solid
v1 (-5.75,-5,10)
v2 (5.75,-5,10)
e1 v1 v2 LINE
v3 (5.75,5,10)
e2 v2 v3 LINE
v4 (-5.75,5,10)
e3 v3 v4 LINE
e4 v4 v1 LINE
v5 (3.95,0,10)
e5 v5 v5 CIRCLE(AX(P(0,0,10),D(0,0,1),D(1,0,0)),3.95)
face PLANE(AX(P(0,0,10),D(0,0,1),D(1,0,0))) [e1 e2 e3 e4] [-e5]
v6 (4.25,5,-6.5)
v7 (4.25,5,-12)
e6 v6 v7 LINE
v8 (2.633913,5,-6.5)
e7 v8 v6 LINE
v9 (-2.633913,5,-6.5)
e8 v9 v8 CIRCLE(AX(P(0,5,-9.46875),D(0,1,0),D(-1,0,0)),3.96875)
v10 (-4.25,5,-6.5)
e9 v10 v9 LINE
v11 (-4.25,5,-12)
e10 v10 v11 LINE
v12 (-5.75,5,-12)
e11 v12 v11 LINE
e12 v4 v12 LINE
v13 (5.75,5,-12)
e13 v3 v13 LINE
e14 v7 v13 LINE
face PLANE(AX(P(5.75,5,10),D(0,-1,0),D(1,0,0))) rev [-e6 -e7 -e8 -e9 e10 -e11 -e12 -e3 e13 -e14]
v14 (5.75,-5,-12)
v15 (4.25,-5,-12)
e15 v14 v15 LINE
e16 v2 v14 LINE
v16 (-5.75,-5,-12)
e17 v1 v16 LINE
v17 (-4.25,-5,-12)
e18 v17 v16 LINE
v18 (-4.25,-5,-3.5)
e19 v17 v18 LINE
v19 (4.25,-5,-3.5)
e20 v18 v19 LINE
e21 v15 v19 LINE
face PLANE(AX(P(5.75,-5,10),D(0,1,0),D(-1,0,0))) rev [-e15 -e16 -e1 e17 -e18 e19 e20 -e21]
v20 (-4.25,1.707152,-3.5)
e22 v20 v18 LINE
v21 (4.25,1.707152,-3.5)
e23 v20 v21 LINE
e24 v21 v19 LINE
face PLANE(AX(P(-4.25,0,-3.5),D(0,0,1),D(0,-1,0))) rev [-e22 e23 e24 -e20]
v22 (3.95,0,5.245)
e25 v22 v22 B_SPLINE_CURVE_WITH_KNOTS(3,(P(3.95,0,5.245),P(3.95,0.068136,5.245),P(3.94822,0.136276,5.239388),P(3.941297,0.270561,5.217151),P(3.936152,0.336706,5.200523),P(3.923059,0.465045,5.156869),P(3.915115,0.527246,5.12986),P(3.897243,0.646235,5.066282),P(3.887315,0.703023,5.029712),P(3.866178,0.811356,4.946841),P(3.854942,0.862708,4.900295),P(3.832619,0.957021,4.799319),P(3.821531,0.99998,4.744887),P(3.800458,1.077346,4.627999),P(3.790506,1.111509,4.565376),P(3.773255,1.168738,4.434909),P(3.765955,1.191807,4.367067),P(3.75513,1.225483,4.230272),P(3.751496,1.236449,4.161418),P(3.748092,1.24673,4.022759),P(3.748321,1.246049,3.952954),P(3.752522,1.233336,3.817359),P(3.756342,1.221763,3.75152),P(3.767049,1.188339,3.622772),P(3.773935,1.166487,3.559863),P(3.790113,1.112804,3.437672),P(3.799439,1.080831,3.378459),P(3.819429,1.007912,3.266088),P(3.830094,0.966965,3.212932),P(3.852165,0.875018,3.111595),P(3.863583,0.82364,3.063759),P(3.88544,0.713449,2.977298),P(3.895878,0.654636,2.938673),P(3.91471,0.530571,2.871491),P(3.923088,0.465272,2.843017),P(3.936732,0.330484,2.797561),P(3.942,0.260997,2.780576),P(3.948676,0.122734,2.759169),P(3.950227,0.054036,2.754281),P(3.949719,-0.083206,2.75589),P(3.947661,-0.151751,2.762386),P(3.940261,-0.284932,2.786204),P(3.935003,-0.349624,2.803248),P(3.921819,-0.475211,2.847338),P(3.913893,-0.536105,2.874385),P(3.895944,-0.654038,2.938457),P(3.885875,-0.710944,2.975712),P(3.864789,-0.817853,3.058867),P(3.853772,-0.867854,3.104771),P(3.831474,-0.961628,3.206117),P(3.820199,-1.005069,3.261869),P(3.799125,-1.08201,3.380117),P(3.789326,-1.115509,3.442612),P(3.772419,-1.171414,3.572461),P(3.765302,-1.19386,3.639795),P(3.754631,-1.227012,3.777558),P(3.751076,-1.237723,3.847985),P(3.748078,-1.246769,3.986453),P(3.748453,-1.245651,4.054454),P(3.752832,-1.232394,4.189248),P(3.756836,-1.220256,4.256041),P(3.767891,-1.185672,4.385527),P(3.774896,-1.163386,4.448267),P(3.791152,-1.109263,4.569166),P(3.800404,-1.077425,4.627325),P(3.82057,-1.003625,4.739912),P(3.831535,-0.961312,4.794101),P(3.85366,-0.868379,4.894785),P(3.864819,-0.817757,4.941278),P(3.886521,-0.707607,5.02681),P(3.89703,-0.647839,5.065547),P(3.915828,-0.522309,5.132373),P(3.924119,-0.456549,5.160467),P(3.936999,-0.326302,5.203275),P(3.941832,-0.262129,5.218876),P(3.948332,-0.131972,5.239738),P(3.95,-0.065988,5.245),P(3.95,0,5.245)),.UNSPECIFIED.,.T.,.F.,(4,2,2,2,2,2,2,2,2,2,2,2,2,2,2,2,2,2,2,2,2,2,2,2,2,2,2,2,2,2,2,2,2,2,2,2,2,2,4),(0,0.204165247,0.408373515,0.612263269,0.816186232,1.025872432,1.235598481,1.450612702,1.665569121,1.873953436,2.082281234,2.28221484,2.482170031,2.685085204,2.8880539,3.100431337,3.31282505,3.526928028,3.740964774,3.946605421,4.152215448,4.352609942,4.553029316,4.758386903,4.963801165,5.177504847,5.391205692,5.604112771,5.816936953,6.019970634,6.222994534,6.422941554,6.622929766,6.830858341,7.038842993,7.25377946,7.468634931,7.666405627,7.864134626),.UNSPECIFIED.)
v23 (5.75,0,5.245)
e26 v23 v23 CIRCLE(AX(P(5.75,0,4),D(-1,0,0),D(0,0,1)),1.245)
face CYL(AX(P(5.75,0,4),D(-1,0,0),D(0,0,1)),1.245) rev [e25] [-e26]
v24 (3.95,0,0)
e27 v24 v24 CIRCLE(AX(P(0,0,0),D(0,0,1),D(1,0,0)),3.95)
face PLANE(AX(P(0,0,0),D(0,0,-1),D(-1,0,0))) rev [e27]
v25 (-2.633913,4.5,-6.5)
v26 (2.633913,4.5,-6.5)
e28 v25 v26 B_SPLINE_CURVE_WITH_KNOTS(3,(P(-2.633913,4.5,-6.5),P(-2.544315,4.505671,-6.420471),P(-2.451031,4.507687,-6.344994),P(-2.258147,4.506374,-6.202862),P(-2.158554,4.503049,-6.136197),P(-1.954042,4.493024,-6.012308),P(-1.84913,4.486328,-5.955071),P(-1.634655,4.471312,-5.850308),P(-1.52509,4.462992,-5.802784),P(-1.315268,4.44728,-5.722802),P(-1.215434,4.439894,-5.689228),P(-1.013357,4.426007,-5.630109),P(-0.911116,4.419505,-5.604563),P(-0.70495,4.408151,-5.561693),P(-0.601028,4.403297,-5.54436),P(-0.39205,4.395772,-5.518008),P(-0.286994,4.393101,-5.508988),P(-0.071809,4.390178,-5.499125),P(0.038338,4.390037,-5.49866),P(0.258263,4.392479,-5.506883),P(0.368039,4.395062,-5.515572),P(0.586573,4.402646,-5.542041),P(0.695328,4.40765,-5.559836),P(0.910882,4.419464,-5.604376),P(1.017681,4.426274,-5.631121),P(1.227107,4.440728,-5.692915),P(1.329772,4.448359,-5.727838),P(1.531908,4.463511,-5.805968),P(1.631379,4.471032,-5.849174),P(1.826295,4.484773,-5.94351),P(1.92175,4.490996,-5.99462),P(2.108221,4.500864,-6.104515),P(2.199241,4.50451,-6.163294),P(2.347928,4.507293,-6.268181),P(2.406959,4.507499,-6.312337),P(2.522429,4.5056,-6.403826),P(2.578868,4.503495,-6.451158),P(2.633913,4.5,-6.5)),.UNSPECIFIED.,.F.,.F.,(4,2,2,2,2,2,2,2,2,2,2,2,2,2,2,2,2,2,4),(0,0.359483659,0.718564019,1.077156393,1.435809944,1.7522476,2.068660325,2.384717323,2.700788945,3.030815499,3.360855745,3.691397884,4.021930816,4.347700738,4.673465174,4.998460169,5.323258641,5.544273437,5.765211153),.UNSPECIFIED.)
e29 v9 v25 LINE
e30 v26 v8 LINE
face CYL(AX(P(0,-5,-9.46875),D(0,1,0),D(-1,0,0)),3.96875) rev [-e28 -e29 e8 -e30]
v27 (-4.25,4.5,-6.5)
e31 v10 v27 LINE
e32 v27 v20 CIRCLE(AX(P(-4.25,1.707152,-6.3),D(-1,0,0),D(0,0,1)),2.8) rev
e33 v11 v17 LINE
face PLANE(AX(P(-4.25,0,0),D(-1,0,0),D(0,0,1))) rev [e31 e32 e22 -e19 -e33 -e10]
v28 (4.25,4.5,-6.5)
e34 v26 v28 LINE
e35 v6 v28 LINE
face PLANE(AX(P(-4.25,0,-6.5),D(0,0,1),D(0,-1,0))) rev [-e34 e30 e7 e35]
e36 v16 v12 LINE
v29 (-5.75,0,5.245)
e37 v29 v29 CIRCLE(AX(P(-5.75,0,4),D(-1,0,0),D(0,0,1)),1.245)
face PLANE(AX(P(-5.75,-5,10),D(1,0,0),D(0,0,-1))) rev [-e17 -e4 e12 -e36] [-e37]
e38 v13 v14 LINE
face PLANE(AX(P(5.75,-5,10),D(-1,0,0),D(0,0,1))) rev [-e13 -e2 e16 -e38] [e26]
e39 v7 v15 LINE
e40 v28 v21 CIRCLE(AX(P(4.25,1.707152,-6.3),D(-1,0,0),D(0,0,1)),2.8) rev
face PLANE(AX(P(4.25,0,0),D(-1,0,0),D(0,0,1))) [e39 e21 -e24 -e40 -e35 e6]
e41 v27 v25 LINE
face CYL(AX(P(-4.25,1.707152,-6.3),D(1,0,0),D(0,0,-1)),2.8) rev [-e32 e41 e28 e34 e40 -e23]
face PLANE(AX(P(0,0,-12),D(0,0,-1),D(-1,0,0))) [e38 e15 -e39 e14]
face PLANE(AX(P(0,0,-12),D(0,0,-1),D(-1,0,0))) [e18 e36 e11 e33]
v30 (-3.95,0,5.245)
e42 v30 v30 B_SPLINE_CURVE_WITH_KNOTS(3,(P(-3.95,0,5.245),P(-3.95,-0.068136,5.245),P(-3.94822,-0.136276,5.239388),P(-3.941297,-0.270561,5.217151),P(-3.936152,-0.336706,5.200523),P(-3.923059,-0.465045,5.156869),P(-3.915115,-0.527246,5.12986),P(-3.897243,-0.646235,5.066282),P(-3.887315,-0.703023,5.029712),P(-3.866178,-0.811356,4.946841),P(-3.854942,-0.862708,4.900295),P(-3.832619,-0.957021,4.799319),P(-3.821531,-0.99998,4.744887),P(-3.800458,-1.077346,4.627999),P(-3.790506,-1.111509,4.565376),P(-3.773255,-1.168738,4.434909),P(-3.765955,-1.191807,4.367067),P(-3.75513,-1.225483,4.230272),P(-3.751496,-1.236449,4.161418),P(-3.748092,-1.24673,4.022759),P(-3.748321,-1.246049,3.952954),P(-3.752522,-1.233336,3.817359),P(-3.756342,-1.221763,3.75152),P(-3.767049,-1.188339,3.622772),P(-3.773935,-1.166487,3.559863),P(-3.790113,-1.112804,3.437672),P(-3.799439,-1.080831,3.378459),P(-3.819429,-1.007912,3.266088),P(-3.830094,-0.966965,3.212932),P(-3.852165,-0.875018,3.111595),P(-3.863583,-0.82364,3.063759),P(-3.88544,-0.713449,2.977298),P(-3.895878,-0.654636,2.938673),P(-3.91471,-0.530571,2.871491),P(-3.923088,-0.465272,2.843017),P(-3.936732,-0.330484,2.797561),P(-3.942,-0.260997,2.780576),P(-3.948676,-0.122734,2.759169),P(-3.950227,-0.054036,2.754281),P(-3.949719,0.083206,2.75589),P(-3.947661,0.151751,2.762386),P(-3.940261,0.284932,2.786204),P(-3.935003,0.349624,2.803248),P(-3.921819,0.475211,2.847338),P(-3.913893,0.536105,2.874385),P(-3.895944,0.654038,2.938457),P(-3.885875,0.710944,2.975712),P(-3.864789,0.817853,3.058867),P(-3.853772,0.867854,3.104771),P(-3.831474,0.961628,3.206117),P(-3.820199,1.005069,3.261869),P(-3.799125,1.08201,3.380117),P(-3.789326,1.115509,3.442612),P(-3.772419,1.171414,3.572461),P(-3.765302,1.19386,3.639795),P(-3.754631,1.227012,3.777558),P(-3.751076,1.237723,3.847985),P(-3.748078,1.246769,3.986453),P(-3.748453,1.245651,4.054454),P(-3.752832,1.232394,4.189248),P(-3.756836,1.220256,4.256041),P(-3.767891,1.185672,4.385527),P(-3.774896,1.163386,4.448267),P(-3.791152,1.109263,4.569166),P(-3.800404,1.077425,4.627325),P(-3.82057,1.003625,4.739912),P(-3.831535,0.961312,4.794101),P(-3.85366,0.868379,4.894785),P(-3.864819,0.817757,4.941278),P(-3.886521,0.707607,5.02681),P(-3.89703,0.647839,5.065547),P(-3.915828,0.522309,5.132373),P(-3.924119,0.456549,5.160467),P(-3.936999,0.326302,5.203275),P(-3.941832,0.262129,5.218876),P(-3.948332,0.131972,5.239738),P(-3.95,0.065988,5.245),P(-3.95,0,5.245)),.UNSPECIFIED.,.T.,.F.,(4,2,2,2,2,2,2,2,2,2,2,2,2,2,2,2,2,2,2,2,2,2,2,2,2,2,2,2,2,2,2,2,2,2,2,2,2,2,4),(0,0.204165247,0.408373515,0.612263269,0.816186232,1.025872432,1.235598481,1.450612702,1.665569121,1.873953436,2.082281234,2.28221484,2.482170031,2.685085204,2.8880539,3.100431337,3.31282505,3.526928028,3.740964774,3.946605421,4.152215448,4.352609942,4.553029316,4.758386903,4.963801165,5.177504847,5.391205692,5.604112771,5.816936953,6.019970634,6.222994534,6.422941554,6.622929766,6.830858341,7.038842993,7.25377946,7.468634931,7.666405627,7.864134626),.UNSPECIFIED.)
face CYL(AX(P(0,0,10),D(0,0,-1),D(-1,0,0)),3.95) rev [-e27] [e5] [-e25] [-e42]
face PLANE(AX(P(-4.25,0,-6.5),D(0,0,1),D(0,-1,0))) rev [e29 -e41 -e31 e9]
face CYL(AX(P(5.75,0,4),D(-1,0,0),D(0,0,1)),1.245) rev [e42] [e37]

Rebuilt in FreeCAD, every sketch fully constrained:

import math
import FreeCAD as App
import Part
import Sketcher

V = App.Vector
Q = App.Units.Quantity

doc = App.newDocument("Part")
params = doc.addObject("Spreadsheet::Sheet", "Params")
for row, (alias, value) in enumerate([
    ("sketch1_diameter", "7.9 mm"),
    ("sketch1_height", "10 mm"),
    ("sketch1_width", "11.5 mm"),
    ("pad1_length", "10 mm"),
    ("sketch2_height", "10 mm"),
    ("sketch2_width", "11.5 mm"),
    ("pad2_length", "12 mm"),
    ("sketch3_radius", "2.8 mm"),
    ("sketch3_width", "10 mm"),
    ("sketch3_width2", "0.5 mm"),
    ("sketch3_height", "8.5 mm"),
    ("sketch3_height2", "5.5 mm"),
    ("pocket1_length", "4.25 mm"),
    ("pocket1_length2", "4.25 mm"),
    ("sketch4_diameter", "2.49 mm"),
], start=1):
    params.set(f"A{row}", alias)
    params.set(f"B{row}", "=" + value)
    params.setAlias(f"B{row}", alias)

body = doc.addObject("PartDesign::Body", "Body")

# Sketch on XY plane
sketch1 = doc.addObject("Sketcher::SketchObject", "Sketch")
body.addObject(sketch1)
sketch1.AttachmentSupport = (doc.XY_Plane, [""])
sketch1.MapMode = "FlatFace"
sketch1.addGeometry([
    Part.LineSegment(V(-5.8, 5, 0), V(-5.8, -5, 0)),  # 0
    Part.LineSegment(V(-5.8, -5, 0), V(5.8, -5, 0)),  # 1
    Part.LineSegment(V(5.8, -5, 0), V(5.8, 5, 0)),  # 2
    Part.LineSegment(V(5.8, 5, 0), V(-5.8, 5, 0)),  # 3
    Part.Circle(V(0, 0, 0), V(0, 0, 1), 4),  # 4
], False)
sketch1.addConstraint([
    Sketcher.Constraint("Coincident", 0, 2, 1, 1),
    Sketcher.Constraint("Coincident", 1, 2, 2, 1),
    Sketcher.Constraint("Coincident", 2, 2, 3, 1),
    Sketcher.Constraint("Coincident", 3, 2, 0, 1),
    Sketcher.Constraint("Vertical", 0),
    Sketcher.Constraint("Horizontal", 1),
    Sketcher.Constraint("Vertical", 2),
    Sketcher.Constraint("Horizontal", 3),
    Sketcher.Constraint("Coincident", 4, 3, -1, 1),
    Sketcher.Constraint("Symmetric", 0, 2, 2, 2, -1, 1),
    Sketcher.Constraint("Diameter", 4, Q("7.9 mm")),
    Sketcher.Constraint("DistanceY", 0, 2, 0, 1, Q("10 mm")),
    Sketcher.Constraint("DistanceX", 1, 1, 1, 2, Q("11.5 mm")),
])
sketch1.setExpression("Constraints[10]", "Params.sketch1_diameter")
sketch1.setExpression("Constraints[11]", "Params.sketch1_height")
sketch1.setExpression("Constraints[12]", "Params.sketch1_width")
pad1 = doc.addObject("PartDesign::Pad", "Pad")
body.addObject(pad1)
pad1.Profile = sketch1
pad1.setExpression("Length", "Params.pad1_length")

# Sketch on XY plane
sketch2 = doc.addObject("Sketcher::SketchObject", "Sketch001")
body.addObject(sketch2)
sketch2.AttachmentSupport = (doc.XY_Plane, [""])
sketch2.MapMode = "FlatFace"
sketch2.addGeometry([
    Part.LineSegment(V(6, 5, 0), V(6, -5, 0)),
    Part.LineSegment(V(6, -5, 0), V(-6, -5, 0)),
    Part.LineSegment(V(-6, -5, 0), V(-6, 5, 0)),
    Part.LineSegment(V(-6, 5, 0), V(6, 5, 0)),
], False)
sketch2.addConstraint([
    Sketcher.Constraint("Coincident", 0, 2, 1, 1),
    Sketcher.Constraint("Coincident", 1, 2, 2, 1),
    Sketcher.Constraint("Coincident", 2, 2, 3, 1),
    Sketcher.Constraint("Coincident", 3, 2, 0, 1),
    Sketcher.Constraint("Vertical", 0),
    Sketcher.Constraint("Horizontal", 1),
    Sketcher.Constraint("Vertical", 2),
    Sketcher.Constraint("Horizontal", 3),
    Sketcher.Constraint("Symmetric", 0, 2, 2, 2, -1, 1),
    Sketcher.Constraint("DistanceY", 0, 2, 0, 1, Q("10 mm")),
    Sketcher.Constraint("DistanceX", 1, 2, 1, 1, Q("11.5 mm")),
])
sketch2.setExpression("Constraints[9]", "Params.sketch2_height")
sketch2.setExpression("Constraints[10]", "Params.sketch2_width")
pad2 = doc.addObject("PartDesign::Pad", "Pad001")
body.addObject(pad2)
pad2.Profile = sketch2
pad2.setExpression("Length", "Params.pad2_length")
pad2.Reversed = True

# Sketch on YZ plane
sketch3 = doc.addObject("Sketcher::SketchObject", "Sketch002")
body.addObject(sketch3)
sketch3.AttachmentSupport = (doc.YZ_Plane, [""])
sketch3.MapMode = "FlatFace"
sketch3.addGeometry([
    Part.LineSegment(V(-5, -12, 0), V(-5, -3.5, 0)),  # 0
    Part.LineSegment(V(-5, -3.5, 0), V(1.7, -3.5, 0)),  # 1
    Part.ArcOfCircle(Part.Circle(V(1.7, -6.3, 0), V(0, 0, 1), 2.8), math.radians(-4), math.radians(90)),  # 2
    Part.LineSegment(V(4.5, -6.5, 0), V(5, -6.5, 0)),  # 3
    Part.LineSegment(V(5, -6.5, 0), V(5, -12, 0)),  # 4
    Part.LineSegment(V(5, -12, 0), V(-5, -12, 0)),  # 5
], False)
sketch3.addConstraint([
    Sketcher.Constraint("Coincident", 0, 2, 1, 1),
    Sketcher.Constraint("Tangent", 1, 2, 2, 2),
    Sketcher.Constraint("Coincident", 2, 1, 3, 1),
    Sketcher.Constraint("Coincident", 3, 2, 4, 1),
    Sketcher.Constraint("Coincident", 4, 2, 5, 1),
    Sketcher.Constraint("Coincident", 5, 2, 0, 1),
    Sketcher.Constraint("Vertical", 0),
    Sketcher.Constraint("Horizontal", 1),
    Sketcher.Constraint("Horizontal", 3),
    Sketcher.Constraint("Vertical", 4),
    Sketcher.Constraint("Horizontal", 5),
    Sketcher.Constraint("Radius", 2, Q("2.8 mm")),
    Sketcher.Constraint("DistanceX", 5, 2, 5, 1, Q("10 mm")),
    Sketcher.Constraint("DistanceX", 3, 1, 3, 2, Q("0.5 mm")),
    Sketcher.Constraint("DistanceY", 0, 1, 0, 2, Q("8.5 mm")),
    Sketcher.Constraint("DistanceY", 4, 2, 4, 1, Q("5.5 mm")),
    Sketcher.Constraint("DistanceX", 0, 2, -1, 1, Q("5 mm")),
    Sketcher.Constraint("DistanceY", 4, 2, -1, 1, Q("12 mm")),
])
sketch3.setExpression("Constraints[11]", "Params.sketch3_radius")
sketch3.setExpression("Constraints[12]", "Params.sketch3_width")
sketch3.setExpression("Constraints[13]", "Params.sketch3_width2")
sketch3.setExpression("Constraints[14]", "Params.sketch3_height")
sketch3.setExpression("Constraints[15]", "Params.sketch3_height2")
pocket1 = doc.addObject("PartDesign::Pocket", "Pocket")
body.addObject(pocket1)
pocket1.Profile = sketch3
pocket1.Type = "TwoLengths"
pocket1.setExpression("Length", "Params.pocket1_length")
pocket1.setExpression("Length2", "Params.pocket1_length2")

# Sketch on YZ plane
sketch4 = doc.addObject("Sketcher::SketchObject", "Sketch003")
body.addObject(sketch4)
sketch4.AttachmentSupport = (doc.YZ_Plane, [""])
sketch4.MapMode = "FlatFace"
sketch4.AttachmentOffset = App.Placement(V(0, 0, -5.75), App.Rotation())
sketch4.addGeometry(Part.Circle(V(0, 4, 0), V(0, 0, 1), 1.2), False)
sketch4.addConstraint([
    Sketcher.Constraint("PointOnObject", 0, 3, -2),
    Sketcher.Constraint("Diameter", 0, Q("2.49 mm")),
    Sketcher.Constraint("DistanceY", -1, 1, 0, 3, Q("4 mm")),
])
sketch4.setExpression("Constraints[1]", "Params.sketch4_diameter")
pocket2 = doc.addObject("PartDesign::Pocket", "Pocket001")
body.addObject(pocket2)
pocket2.Profile = sketch4
pocket2.Type = "ThroughAll"
pocket2.Reversed = True

# Sketch on XZ plane
sketch5 = doc.addObject("Sketcher::SketchObject", "Sketch004")
body.addObject(sketch5)
sketch5.AttachmentSupport = (doc.XZ_Plane, [""])
sketch5.MapMode = "FlatFace"
sketch5.AttachmentOffset = App.Placement(V(0, 0, -5), App.Rotation())
sketch5.addGeometry([
    Part.ArcOfCircle(Part.Circle(V(0, -9.5, 0), V(0, 0, 1), 4), math.radians(0), math.radians(48)),
    Part.ArcOfCircle(Part.Circle(V(0, -9.5, 0), V(0, 0, 1), 4), math.radians(132), math.radians(360)),
    Part.ArcOfCircle(Part.Circle(V(0, -9.5, 0), V(0, 0, 1), 4), math.radians(90), math.radians(132)),
    Part.ArcOfCircle(Part.Circle(V(0, -9.5, 0), V(0, 0, 1), 4), math.radians(48), math.radians(90)),
], False)
sketch5.addConstraint([
    Sketcher.Constraint("Tangent", 0, 1, 1, 2),
    Sketcher.Constraint("Tangent", 1, 1, 2, 2),
    Sketcher.Constraint("Tangent", 2, 1, 3, 2),
    Sketcher.Constraint("Tangent", 3, 1, 0, 2),
    Sketcher.Constraint("Equal", 0, 1),
    Sketcher.Constraint("Symmetric", 1, 1, 3, 1, -2),
    Sketcher.Constraint("PointOnObject", 2, 1, -2),
    Sketcher.Constraint("Horizontal", 3, 3, 0, 1),
    Sketcher.Constraint("DistanceY", 1, 1, 2, 1, Q("1 mm")),
    Sketcher.Constraint("DistanceY", 1, 1, -1, 1, Q("6.5 mm")),
    Sketcher.Constraint("Radius", 0, Q("3.96875 mm")),
])
pocket3 = doc.addObject("PartDesign::Pocket", "Pocket002")
body.addObject(pocket3)
pocket3.Profile = sketch5
pocket3.Type = "ThroughAll"
pocket3.Reversed = True

doc.recompute()
